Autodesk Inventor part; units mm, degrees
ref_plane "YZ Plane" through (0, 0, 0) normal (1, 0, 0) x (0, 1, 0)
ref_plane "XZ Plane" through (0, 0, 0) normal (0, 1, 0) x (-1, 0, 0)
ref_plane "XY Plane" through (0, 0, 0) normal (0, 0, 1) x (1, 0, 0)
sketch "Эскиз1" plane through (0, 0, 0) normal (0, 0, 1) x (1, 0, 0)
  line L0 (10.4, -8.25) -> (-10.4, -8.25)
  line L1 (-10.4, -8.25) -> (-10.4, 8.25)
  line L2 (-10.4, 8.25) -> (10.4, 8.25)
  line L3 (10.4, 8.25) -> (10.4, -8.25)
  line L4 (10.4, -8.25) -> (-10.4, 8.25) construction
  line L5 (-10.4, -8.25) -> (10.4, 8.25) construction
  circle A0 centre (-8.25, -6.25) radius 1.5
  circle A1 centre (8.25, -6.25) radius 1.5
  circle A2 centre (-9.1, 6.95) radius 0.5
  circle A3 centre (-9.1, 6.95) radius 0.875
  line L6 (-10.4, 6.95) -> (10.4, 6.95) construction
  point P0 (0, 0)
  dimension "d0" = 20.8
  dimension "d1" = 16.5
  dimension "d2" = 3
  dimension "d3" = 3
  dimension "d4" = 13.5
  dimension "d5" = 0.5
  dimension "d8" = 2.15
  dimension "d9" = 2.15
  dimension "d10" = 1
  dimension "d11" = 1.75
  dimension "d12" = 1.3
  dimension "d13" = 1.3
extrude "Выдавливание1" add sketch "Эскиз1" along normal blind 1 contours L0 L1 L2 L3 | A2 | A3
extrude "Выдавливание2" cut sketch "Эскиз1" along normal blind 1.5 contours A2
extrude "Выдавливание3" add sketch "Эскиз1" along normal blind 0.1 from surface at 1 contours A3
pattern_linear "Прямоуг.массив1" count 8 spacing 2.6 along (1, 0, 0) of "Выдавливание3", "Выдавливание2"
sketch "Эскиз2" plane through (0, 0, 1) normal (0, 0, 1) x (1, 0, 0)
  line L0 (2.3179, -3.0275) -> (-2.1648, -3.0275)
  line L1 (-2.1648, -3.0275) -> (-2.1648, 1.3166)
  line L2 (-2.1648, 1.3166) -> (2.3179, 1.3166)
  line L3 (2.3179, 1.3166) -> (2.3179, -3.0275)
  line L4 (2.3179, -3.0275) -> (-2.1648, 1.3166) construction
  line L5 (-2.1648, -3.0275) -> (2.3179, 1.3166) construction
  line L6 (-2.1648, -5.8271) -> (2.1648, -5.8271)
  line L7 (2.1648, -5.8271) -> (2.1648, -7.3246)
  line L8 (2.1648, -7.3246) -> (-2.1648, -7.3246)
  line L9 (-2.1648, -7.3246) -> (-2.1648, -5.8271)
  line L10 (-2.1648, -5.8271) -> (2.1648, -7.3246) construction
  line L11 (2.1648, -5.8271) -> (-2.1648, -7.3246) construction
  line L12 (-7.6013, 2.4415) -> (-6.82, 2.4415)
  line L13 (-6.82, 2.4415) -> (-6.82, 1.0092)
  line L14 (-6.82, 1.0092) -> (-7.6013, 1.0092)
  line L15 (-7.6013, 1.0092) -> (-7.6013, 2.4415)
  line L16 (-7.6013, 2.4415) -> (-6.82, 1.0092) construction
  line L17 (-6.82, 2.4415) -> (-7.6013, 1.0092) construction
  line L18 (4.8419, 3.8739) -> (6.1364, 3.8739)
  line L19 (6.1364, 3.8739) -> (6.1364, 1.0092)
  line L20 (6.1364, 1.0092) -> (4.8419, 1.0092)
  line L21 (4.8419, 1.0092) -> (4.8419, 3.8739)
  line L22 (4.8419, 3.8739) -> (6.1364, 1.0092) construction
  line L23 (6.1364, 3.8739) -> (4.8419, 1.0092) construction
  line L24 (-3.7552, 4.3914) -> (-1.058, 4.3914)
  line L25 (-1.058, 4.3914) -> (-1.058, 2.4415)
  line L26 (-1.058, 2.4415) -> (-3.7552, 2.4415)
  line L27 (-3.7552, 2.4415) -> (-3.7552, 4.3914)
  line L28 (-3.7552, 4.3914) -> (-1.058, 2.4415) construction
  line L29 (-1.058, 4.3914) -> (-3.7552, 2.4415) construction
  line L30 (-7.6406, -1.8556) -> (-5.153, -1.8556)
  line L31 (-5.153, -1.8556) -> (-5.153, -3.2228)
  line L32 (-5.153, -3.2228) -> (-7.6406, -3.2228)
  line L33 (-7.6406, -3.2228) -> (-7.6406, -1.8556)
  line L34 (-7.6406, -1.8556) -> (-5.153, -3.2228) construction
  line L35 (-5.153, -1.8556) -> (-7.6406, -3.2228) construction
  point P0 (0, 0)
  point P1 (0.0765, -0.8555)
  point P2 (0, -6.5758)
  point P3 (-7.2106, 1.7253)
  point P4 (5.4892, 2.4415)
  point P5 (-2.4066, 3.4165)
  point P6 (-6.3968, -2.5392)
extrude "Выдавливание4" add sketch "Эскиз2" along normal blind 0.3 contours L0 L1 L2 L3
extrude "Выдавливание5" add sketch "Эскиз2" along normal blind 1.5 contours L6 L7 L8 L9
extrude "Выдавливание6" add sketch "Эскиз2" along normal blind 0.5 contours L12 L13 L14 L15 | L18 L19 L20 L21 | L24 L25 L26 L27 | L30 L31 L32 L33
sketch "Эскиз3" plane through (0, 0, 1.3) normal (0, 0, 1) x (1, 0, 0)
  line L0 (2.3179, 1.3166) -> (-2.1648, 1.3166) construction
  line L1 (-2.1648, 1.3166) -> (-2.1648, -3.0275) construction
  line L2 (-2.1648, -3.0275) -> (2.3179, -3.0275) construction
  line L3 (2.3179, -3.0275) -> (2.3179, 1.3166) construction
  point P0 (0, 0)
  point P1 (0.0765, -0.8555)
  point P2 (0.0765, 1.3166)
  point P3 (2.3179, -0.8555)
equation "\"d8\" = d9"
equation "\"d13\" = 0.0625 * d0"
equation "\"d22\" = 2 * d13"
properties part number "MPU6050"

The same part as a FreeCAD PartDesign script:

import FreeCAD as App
import Part
import Sketcher

doc = App.newDocument("Part")
body = doc.addObject("PartDesign::Body", "Body")

# Sketch on XY plane
sketch1 = body.newObject("Sketcher::SketchObject", "Sketch")
sketch1.AttachmentSupport = (doc.getObject("XY_Plane"), [""])
sketch1.MapMode = "FlatFace"
sketch1.addGeometry([
    Part.LineSegment(App.Vector(-10.4, -8.2, 0), App.Vector(10.4, -8.2, 0)),  # 0
    Part.LineSegment(App.Vector(10.4, -8.2, 0), App.Vector(10.4, 8.2, 0)),  # 1
    Part.LineSegment(App.Vector(10.4, 8.2, 0), App.Vector(-10.4, 8.2, 0)),  # 2
    Part.LineSegment(App.Vector(-10.4, 8.2, 0), App.Vector(-10.4, -8.2, 0)),  # 3
    Part.Circle(App.Vector(-8.2, -6.2, 0), App.Vector(0, 0, 1), 1.5),  # 4
    Part.Circle(App.Vector(8.2, -6.2, 0), App.Vector(0, 0, 1), 1.5),  # 5
], False)
sketch1.addConstraint([
    Sketcher.Constraint("Coincident", 0, 2, 1, 1),
    Sketcher.Constraint("Coincident", 1, 2, 2, 1),
    Sketcher.Constraint("Coincident", 2, 2, 3, 1),
    Sketcher.Constraint("Coincident", 3, 2, 0, 1),
    Sketcher.Constraint("Horizontal", 0),
    Sketcher.Constraint("Vertical", 1),
    Sketcher.Constraint("Horizontal", 2),
    Sketcher.Constraint("Vertical", 3),
    Sketcher.Constraint("Equal", 4, 5),
    Sketcher.Constraint("Symmetric", 0, 2, 2, 2, -1, 1),
    Sketcher.Constraint("Symmetric", 4, 3, 5, 3, -2),
    Sketcher.Constraint("Diameter", 4, 3.0),
    Sketcher.Constraint("DistanceX", 0, 1, 0, 2, 20.8),
    Sketcher.Constraint("DistanceY", 1, 1, 1, 2, 16.5),
    Sketcher.Constraint("DistanceX", 4, 3, 5, 3, 16.5),
    Sketcher.Constraint("DistanceY", 0, 2, 5, 3, 2.0),
])
pad1 = body.newObject("PartDesign::Pad", "Pad")
pad1.Profile = sketch1
pad1.Length = 1

# Sketch on XY plane
sketch2 = body.newObject("Sketcher::SketchObject", "Sketch001")
sketch2.AttachmentSupport = (doc.getObject("XY_Plane"), [""])
sketch2.MapMode = "FlatFace"
sketch2.addGeometry(Part.Circle(App.Vector(-9.1, 7, 0), App.Vector(0, 0, 1), 0.5), False)
sketch2.addConstraint([
    Sketcher.Constraint("Diameter", 0, 1.0),
    Sketcher.Constraint("DistanceX", 0, 3, -1, 1, 9.1),
    Sketcher.Constraint("DistanceY", -1, 1, 0, 3, 6.95),
])
pocket1 = body.newObject("PartDesign::Pocket", "Pocket")
pocket1.Profile = sketch2
pocket1.Length = 1.5
pocket1.Reversed = True

# Sketch on XY plane
sketch3 = body.newObject("Sketcher::SketchObject", "Sketch002")
sketch3.AttachmentSupport = (doc.getObject("XY_Plane"), [""])
sketch3.MapMode = "FlatFace"
sketch3.AttachmentOffset = App.Placement(App.Vector(0, 0, 1), App.Rotation())
sketch3.addGeometry([
    Part.Circle(App.Vector(-9.1, 7, 0), App.Vector(0, 0, 1), 0.9),
    Part.Circle(App.Vector(-9.1, 7, 0), App.Vector(0, 0, 1), 0.5),
], False)
sketch3.addConstraint([
    Sketcher.Constraint("Coincident", 1, 3, 0, 3),
    Sketcher.Constraint("Diameter", 1, 1.0),
    Sketcher.Constraint("Diameter", 0, 1.75),
    Sketcher.Constraint("DistanceX", 0, 3, -1, 1, 9.1),
    Sketcher.Constraint("DistanceY", -1, 1, 0, 3, 6.95),
])
pad2 = body.newObject("PartDesign::Pad", "Pad001")
pad2.Profile = sketch3
pad2.Length = 0.1
doc.recompute()

linearpattern = body.newObject("PartDesign::LinearPattern", "LinearPattern")
linearpattern.Originals = [pad2, pocket1]
linearpattern.Direction = (doc.getObject("X_Axis"), [""])
linearpattern.Mode = "offset"
linearpattern.Offset = 2.6
linearpattern.Occurrences = 8
body.Tip = linearpattern

# Sketch on XY plane
sketch4 = body.newObject("Sketcher::SketchObject", "Sketch003")
sketch4.AttachmentSupport = (doc.getObject("XY_Plane"), [""])
sketch4.MapMode = "FlatFace"
sketch4.AttachmentOffset = App.Placement(App.Vector(0, 0, 1), App.Rotation())
sketch4.addGeometry([
    Part.LineSegment(App.Vector(-2.2, -3, 0), App.Vector(2.3, -3, 0)),
    Part.LineSegment(App.Vector(2.3, -3, 0), App.Vector(2.3, 1.3, 0)),
    Part.LineSegment(App.Vector(2.3, 1.3, 0), App.Vector(-2.2, 1.3, 0)),
    Part.LineSegment(App.Vector(-2.2, 1.3, 0), App.Vector(-2.2, -3, 0)),
], False)
sketch4.addConstraint([
    Sketcher.Constraint("Coincident", 0, 2, 1, 1),
    Sketcher.Constraint("Coincident", 1, 2, 2, 1),
    Sketcher.Constraint("Coincident", 2, 2, 3, 1),
    Sketcher.Constraint("Coincident", 3, 2, 0, 1),
    Sketcher.Constraint("Horizontal", 0),
    Sketcher.Constraint("Vertical", 1),
    Sketcher.Constraint("Horizontal", 2),
    Sketcher.Constraint("Vertical", 3),
    Sketcher.Constraint("DistanceY", 1, 1, 1, 2, 4.344),
    Sketcher.Constraint("DistanceX", 0, 1, 0, 2, 4.4827),
    Sketcher.Constraint("DistanceX", -1, 1, 0, 2, 2.318),
    Sketcher.Constraint("DistanceY", 0, 2, -1, 1, 3.0275),
])
pad3 = body.newObject("PartDesign::Pad", "Pad002")
pad3.Profile = sketch4
pad3.Length = 0.3

# Sketch on XY plane
sketch5 = body.newObject("Sketcher::SketchObject", "Sketch004")
sketch5.AttachmentSupport = (doc.getObject("XY_Plane"), [""])
sketch5.MapMode = "FlatFace"
sketch5.AttachmentOffset = App.Placement(App.Vector(0, 0, 1), App.Rotation())
sketch5.addGeometry([
    Part.LineSegment(App.Vector(2.2, -5.8, 0), App.Vector(-2.2, -5.8, 0)),
    Part.LineSegment(App.Vector(-2.2, -5.8, 0), App.Vector(-2.2, -7.3, 0)),
    Part.LineSegment(App.Vector(-2.2, -7.3, 0), App.Vector(2.2, -7.3, 0)),
    Part.LineSegment(App.Vector(2.2, -7.3, 0), App.Vector(2.2, -5.8, 0)),
], False)
sketch5.addConstraint([
    Sketcher.Constraint("Coincident", 0, 2, 1, 1),
    Sketcher.Constraint("Coincident", 1, 2, 2, 1),
    Sketcher.Constraint("Coincident", 2, 2, 3, 1),
    Sketcher.Constraint("Coincident", 3, 2, 0, 1),
    Sketcher.Constraint("Horizontal", 0),
    Sketcher.Constraint("Vertical", 1),
    Sketcher.Constraint("Horizontal", 2),
    Sketcher.Constraint("Vertical", 3),
    Sketcher.Constraint("DistanceX", 0, 2, 0, 1, 4.3296),
    Sketcher.Constraint("DistanceY", 1, 2, 1, 1, 1.4975),
    Sketcher.Constraint("DistanceY", 0, 2, -1, 1, 5.827),
    Sketcher.Constraint("DistanceX", 0, 2, -1, 1, 2.1648),
])
pad4 = body.newObject("PartDesign::Pad", "Pad003")
pad4.Profile = sketch5
pad4.Length = 1.5

# Sketch on XY plane
sketch6 = body.newObject("Sketcher::SketchObject", "Sketch005")
sketch6.AttachmentSupport = (doc.getObject("XY_Plane"), [""])
sketch6.MapMode = "FlatFace"
sketch6.AttachmentOffset = App.Placement(App.Vector(0, 0, 1), App.Rotation())
sketch6.addGeometry([
    Part.LineSegment(App.Vector(-6.8, 2.4, 0), App.Vector(-7.6, 2.4, 0)),  # 0
    Part.LineSegment(App.Vector(-7.6, 2.4, 0), App.Vector(-7.6, 1, 0)),  # 1
    Part.LineSegment(App.Vector(-7.6, 1, 0), App.Vector(-6.8, 1, 0)),  # 2
    Part.LineSegment(App.Vector(-6.8, 1, 0), App.Vector(-6.8, 2.4, 0)),  # 3
    Part.LineSegment(App.Vector(6.1, 3.9, 0), App.Vector(4.8, 3.9, 0)),  # 4
    Part.LineSegment(App.Vector(4.8, 3.9, 0), App.Vector(4.8, 1, 0)),  # 5
    Part.LineSegment(App.Vector(4.8, 1, 0), App.Vector(6.1, 1, 0)),  # 6
    Part.LineSegment(App.Vector(6.1, 1, 0), App.Vector(6.1, 3.9, 0)),  # 7
    Part.LineSegment(App.Vector(-1.1, 4.4, 0), App.Vector(-3.8, 4.4, 0)),  # 8
    Part.LineSegment(App.Vector(-3.8, 4.4, 0), App.Vector(-3.8, 2.4, 0)),  # 9
    Part.LineSegment(App.Vector(-3.8, 2.4, 0), App.Vector(-1.1, 2.4, 0)),  # 10
    Part.LineSegment(App.Vector(-1.1, 2.4, 0), App.Vector(-1.1, 4.4, 0)),  # 11
    Part.LineSegment(App.Vector(-5.2, -1.9, 0), App.Vector(-7.6, -1.9, 0)),  # 12
    Part.LineSegment(App.Vector(-7.6, -1.9, 0), App.Vector(-7.6, -3.2, 0)),  # 13
    Part.LineSegment(App.Vector(-7.6, -3.2, 0), App.Vector(-5.2, -3.2, 0)),  # 14
    Part.LineSegment(App.Vector(-5.2, -3.2, 0), App.Vector(-5.2, -1.9, 0)),  # 15
], False)
sketch6.addConstraint([
    Sketcher.Constraint("Coincident", 0, 2, 1, 1),
    Sketcher.Constraint("Coincident", 1, 2, 2, 1),
    Sketcher.Constraint("Coincident", 2, 2, 3, 1),
    Sketcher.Constraint("Coincident", 3, 2, 0, 1),
    Sketcher.Constraint("Coincident", 4, 2, 5, 1),
    Sketcher.Constraint("Coincident", 5, 2, 6, 1),
    Sketcher.Constraint("Coincident", 6, 2, 7, 1),
    Sketcher.Constraint("Coincident", 7, 2, 4, 1),
    Sketcher.Constraint("Coincident", 8, 2, 9, 1),
    Sketcher.Constraint("Coincident", 9, 2, 10, 1),
    Sketcher.Constraint("Coincident", 10, 2, 11, 1),
    Sketcher.Constraint("Coincident", 11, 2, 8, 1),
    Sketcher.Constraint("Coincident", 12, 2, 13, 1),
    Sketcher.Constraint("Coincident", 13, 2, 14, 1),
    Sketcher.Constraint("Coincident", 14, 2, 15, 1),
    Sketcher.Constraint("Coincident", 15, 2, 12, 1),
    Sketcher.Constraint("Horizontal", 0),
    Sketcher.Constraint("Vertical", 1),
    Sketcher.Constraint("Horizontal", 2),
    Sketcher.Constraint("Vertical", 3),
    Sketcher.Constraint("Horizontal", 4),
    Sketcher.Constraint("Vertical", 5),
    Sketcher.Constraint("Horizontal", 6),
    Sketcher.Constraint("Vertical", 7),
    Sketcher.Constraint("Horizontal", 8),
    Sketcher.Constraint("Vertical", 9),
    Sketcher.Constraint("Horizontal", 10),
    Sketcher.Constraint("Vertical", 11),
    Sketcher.Constraint("Horizontal", 12),
    Sketcher.Constraint("Vertical", 13),
    Sketcher.Constraint("Horizontal", 14),
    Sketcher.Constraint("Vertical", 15),
    Sketcher.Constraint("Horizontal", 2, 2, 5, 2),
    Sketcher.Constraint("Horizontal", 3, 2, 9, 2),
    Sketcher.Constraint("DistanceY", 9, 2, 9, 1, 1.95),
    Sketcher.Constraint("DistanceX", 10, 2, 5, 2, 5.9),
    Sketcher.Constraint("DistanceX", 2, 2, -1, 1, 6.82),
    Sketcher.Constraint("DistanceX", 0, 2, 0, 1, 0.7813),
    Sketcher.Constraint("DistanceX", 4, 2, 4, 1, 1.2945),
    Sketcher.Constraint("DistanceX", 8, 2, 8, 1, 2.6972),
    Sketcher.Constraint("DistanceX", 12, 2, 12, 1, 2.4876),
    Sketcher.Constraint("DistanceY", 1, 2, 1, 1, 1.4323),
    Sketcher.Constraint("DistanceY", 5, 2, 5, 1, 2.8647),
    Sketcher.Constraint("DistanceY", 13, 2, 13, 1, 1.3672),
    Sketcher.Constraint("DistanceX", -1, 1, 4, 2, 4.842),
    Sketcher.Constraint("DistanceY", -1, 1, 4, 2, 3.874),
    Sketcher.Constraint("DistanceX", 14, 2, -1, 1, 5.153),
    Sketcher.Constraint("DistanceY", 12, 2, 0, 2, 4.297),
])
pad5 = body.newObject("PartDesign::Pad", "Pad004")
pad5.Profile = sketch6
pad5.Length = 0.5

doc.recompute()
